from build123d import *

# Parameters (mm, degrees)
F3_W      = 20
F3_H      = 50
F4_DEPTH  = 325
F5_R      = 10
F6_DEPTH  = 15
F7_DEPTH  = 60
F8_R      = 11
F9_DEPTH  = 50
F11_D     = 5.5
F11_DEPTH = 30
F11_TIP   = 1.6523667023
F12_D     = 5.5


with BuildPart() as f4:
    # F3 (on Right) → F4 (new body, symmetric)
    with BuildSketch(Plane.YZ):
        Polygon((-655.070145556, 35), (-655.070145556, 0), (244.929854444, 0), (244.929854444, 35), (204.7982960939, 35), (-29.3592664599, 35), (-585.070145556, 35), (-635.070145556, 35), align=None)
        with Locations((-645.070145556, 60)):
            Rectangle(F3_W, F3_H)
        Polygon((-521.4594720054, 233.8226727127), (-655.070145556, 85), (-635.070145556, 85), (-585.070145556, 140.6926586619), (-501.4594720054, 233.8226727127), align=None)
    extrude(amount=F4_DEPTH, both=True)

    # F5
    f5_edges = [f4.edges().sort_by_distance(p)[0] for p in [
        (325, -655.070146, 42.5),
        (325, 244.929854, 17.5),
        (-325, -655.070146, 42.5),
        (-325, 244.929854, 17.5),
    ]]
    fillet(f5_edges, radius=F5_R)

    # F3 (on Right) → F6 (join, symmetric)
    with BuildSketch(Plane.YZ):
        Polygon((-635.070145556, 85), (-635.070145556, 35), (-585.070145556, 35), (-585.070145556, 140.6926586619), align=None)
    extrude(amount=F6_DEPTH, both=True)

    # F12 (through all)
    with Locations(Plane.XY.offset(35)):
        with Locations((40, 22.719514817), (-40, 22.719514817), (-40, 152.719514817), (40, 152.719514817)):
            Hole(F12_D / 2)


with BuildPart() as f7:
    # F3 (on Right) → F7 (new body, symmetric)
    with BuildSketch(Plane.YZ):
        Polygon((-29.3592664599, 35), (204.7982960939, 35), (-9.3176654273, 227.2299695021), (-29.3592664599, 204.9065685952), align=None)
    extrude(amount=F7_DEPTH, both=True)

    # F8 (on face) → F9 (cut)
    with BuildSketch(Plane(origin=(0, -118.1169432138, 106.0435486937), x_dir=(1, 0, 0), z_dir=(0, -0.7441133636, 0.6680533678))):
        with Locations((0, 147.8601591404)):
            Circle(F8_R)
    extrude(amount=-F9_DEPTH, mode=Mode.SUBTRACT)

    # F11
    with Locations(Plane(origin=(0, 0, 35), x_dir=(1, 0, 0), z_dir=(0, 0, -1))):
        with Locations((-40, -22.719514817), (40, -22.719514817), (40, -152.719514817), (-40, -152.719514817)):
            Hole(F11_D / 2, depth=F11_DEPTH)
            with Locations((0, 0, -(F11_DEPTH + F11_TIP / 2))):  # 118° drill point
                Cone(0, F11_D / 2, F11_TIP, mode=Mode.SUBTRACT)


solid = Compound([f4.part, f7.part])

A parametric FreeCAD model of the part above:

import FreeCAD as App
import Part
import Sketcher
from FreeCAD import Vector


def edges_at(feature, points):
    """Names of the edges that pass closest to the given points."""
    edges = feature.Shape.Edges
    near = lambda p: min(range(len(edges)), key=lambda i: edges[i].distToShape(Part.Vertex(*p))[0])
    return sorted({f"Edge{near(p) + 1}" for p in points})


def add_polygon(sketch, points):
    """Adds a closed chain of lines whose ends are joined by coincident constraints."""
    first, n = sketch.GeometryCount, len(points)
    for a, b in zip(points, points[1:] + points[:1]):
        sketch.addGeometry(Part.LineSegment(App.Vector(*a, 0), App.Vector(*b, 0)), False)
    for i in range(n):
        sketch.addConstraint(Sketcher.Constraint("Coincident", first + i, 2, first + (i + 1) % n, 1))

doc = App.newDocument("Part")
body = doc.addObject("PartDesign::Body", "Body")

# Sketch on YZ plane
sketch1 = body.newObject("Sketcher::SketchObject", "Sketch")
sketch1.AttachmentSupport = (doc.getObject("YZ_Plane"), [""])
sketch1.MapMode = "FlatFace"
add_polygon(sketch1, [(-655, 0), (245, 0), (245, 35), (-635, 35), (-635, 85), (-501, 234), (-521, 234), (-655, 85)])  # lines 0-7
sketch1.addConstraint(Sketcher.Constraint("Horizontal", 0))
sketch1.addConstraint(Sketcher.Constraint("Vertical", 1))
sketch1.addConstraint(Sketcher.Constraint("Horizontal", 2))
sketch1.addConstraint(Sketcher.Constraint("Vertical", 3))
sketch1.addConstraint(Sketcher.Constraint("Horizontal", 5))
sketch1.addConstraint(Sketcher.Constraint("Vertical", 7))
sketch1.addConstraint(Sketcher.Constraint("PointOnObject", 0, 2, -1))
sketch1.addConstraint(Sketcher.Constraint("Parallel", 4, 6))
sketch1.addConstraint(Sketcher.Constraint("Horizontal", 3, 2, 6, 2))
sketch1.addConstraint(Sketcher.Constraint("DistanceX", 0, 1, 0, 2, 900.0))
sketch1.addConstraint(Sketcher.Constraint("DistanceX", 2, 2, 2, 1, 880.0))
sketch1.addConstraint(Sketcher.Constraint("DistanceY", 1, 1, 1, 2, 35.0))
sketch1.addConstraint(Sketcher.Constraint("DistanceY", 3, 1, 3, 2, 50.0))
sketch1.addConstraint(Sketcher.Constraint("Distance", 4, 200.0))
sketch1.addConstraint(Sketcher.Constraint("DistanceX", -1, 1, 0, 2, 244.929854))
sketch1.addConstraint(Sketcher.Constraint("DistanceX", 4, 2, -1, 1, 501.459472))
pad1 = body.newObject("PartDesign::Pad", "Pad")
pad1.Profile = sketch1
pad1.Length = 650
pad1.Midplane = True
doc.recompute()

fillet = body.newObject("PartDesign::Fillet", "Fillet")
fillet.Base = (pad1, edges_at(pad1, [
    (325, -655.07, 42.5),
    (325, 244.93, 17.5),
    (-325, -655.07, 42.5),
    (-325, 244.93, 17.5),
]))
fillet.Radius = 10

# Sketch on YZ plane
sketch2 = body.newObject("Sketcher::SketchObject", "Sketch001")
sketch2.AttachmentSupport = (doc.getObject("YZ_Plane"), [""])
sketch2.MapMode = "FlatFace"
add_polygon(sketch2, [(-635, 85), (-635, 35), (-585, 35), (-585, 141)])  # lines 0-3
sketch2.addConstraint(Sketcher.Constraint("Vertical", 0))
sketch2.addConstraint(Sketcher.Constraint("Horizontal", 1))
sketch2.addConstraint(Sketcher.Constraint("Vertical", 2))
sketch2.addConstraint(Sketcher.Constraint("Equal", 1, 0))
sketch2.addConstraint(Sketcher.Constraint("DistanceX", 1, 1, 1, 2, 50.0))
sketch2.addConstraint(Sketcher.Constraint("DistanceY", -1, 1, 0, 2, 35.0))
sketch2.addConstraint(Sketcher.Constraint("DistanceY", 2, 1, 2, 2, 105.692659))
sketch2.addConstraint(Sketcher.Constraint("DistanceX", 0, 2, -1, 1, 635.070146))
pad2 = body.newObject("PartDesign::Pad", "Pad001")
pad2.Profile = sketch2
pad2.Length = 30
pad2.Midplane = True

# Sketch on XY plane
sketch3 = body.newObject("Sketcher::SketchObject", "Sketch002")
sketch3.AttachmentSupport = (doc.getObject("XY_Plane"), [""])
sketch3.MapMode = "FlatFace"
sketch3.AttachmentOffset = App.Placement(Vector(0, 0, 35), App.Rotation())
sketch3.addGeometry(Part.Circle(Vector(40, 22.7, 0), Vector(0, 0, 1), 2.8), False)
sketch3.addGeometry(Part.Circle(Vector(-40, 22.7, 0), Vector(0, 0, 1), 2.8), False)
sketch3.addGeometry(Part.Circle(Vector(-40, 152.7, 0), Vector(0, 0, 1), 2.8), False)
sketch3.addGeometry(Part.Circle(Vector(40, 152.7, 0), Vector(0, 0, 1), 2.8), False)
sketch3.addConstraint(Sketcher.Constraint("Equal", 0, 1))
sketch3.addConstraint(Sketcher.Constraint("Equal", 1, 2))
sketch3.addConstraint(Sketcher.Constraint("Equal", 2, 3))
sketch3.addConstraint(Sketcher.Constraint("Symmetric", 0, 3, 1, 3, -2))
sketch3.addConstraint(Sketcher.Constraint("Symmetric", 2, 3, 3, 3, -2))
sketch3.addConstraint(Sketcher.Constraint("Vertical", 1, 3, 2, 3))
sketch3.addConstraint(Sketcher.Constraint("Diameter", 0, 5.5))
sketch3.addConstraint(Sketcher.Constraint("DistanceX", -1, 1, 0, 3, 40.0))
sketch3.addConstraint(Sketcher.Constraint("DistanceY", 1, 3, 2, 3, 130.0))
sketch3.addConstraint(Sketcher.Constraint("DistanceY", -1, 1, 0, 3, 22.719515))
doc.recompute()
hole = body.newObject("PartDesign::Hole", "Hole")
hole.Profile = sketch3
hole.ThreadType = "None"
hole.Diameter = 5.5
hole.DepthType = "ThroughAll"
body2 = doc.addObject("PartDesign::Body", "Body001")

# Sketch on YZ plane
sketch4 = body2.newObject("Sketcher::SketchObject", "Sketch003")
sketch4.AttachmentSupport = (doc.getObject("YZ_Plane001"), [""])
sketch4.MapMode = "FlatFace"
add_polygon(sketch4, [(-29, 35), (205, 35), (-9, 227), (-29, 205)])  # lines 0-3
sketch4.addConstraint(Sketcher.Constraint("Horizontal", 0))
sketch4.addConstraint(Sketcher.Constraint("Vertical", 3))
sketch4.addConstraint(Sketcher.Constraint("Perpendicular", 1, 2))
sketch4.addConstraint(Sketcher.Constraint("Distance", 2, 30.0))
sketch4.addConstraint(Sketcher.Constraint("DistanceY", -1, 1, 0, 2, 35.0))
sketch4.addConstraint(Sketcher.Constraint("DistanceY", 3, 2, 3, 1, 169.906569))
sketch4.addConstraint(Sketcher.Constraint("DistanceX", 2, 2, 1, 2, 20.041601))
sketch4.addConstraint(Sketcher.Constraint("DistanceX", -1, 1, 0, 2, 204.798296))
pad3 = body2.newObject("PartDesign::Pad", "Pad002")
pad3.Profile = sketch4
pad3.Length = 120
pad3.Midplane = True

# Sketch on an angled plane
sketch5 = body2.newObject("Sketcher::SketchObject", "Sketch004")
sketch5.Placement = App.Placement(Vector(0, -118.116943, 106.043549), App.Rotation(Vector(1, 0, 0), Vector(0, 0.668053368, 0.744113364), Vector(0, -0.744113364, 0.668053368), "ZXY"))
sketch5.addGeometry(Part.Circle(Vector(0, 148, 0), Vector(0, 0, 1), 11), False)
sketch5.addConstraint(Sketcher.Constraint("PointOnObject", 0, 3, -2))
sketch5.addConstraint(Sketcher.Constraint("Diameter", 0, 22.0))
sketch5.addConstraint(Sketcher.Constraint("DistanceY", -1, 1, 0, 3, 147.860159))
pocket1 = body2.newObject("PartDesign::Pocket", "Pocket")
pocket1.Profile = sketch5
pocket1.Length = 50

# Sketch on XY plane
sketch6 = body2.newObject("Sketcher::SketchObject", "Sketch005")
sketch6.AttachmentSupport = (doc.getObject("XY_Plane001"), [""])
sketch6.MapMode = "FlatFace"
sketch6.AttachmentOffset = App.Placement(Vector(0, 0, 35), App.Rotation())
sketch6.addGeometry(Part.Circle(Vector(-40, 22.7, 0), Vector(0, 0, 1), 2.8), False)
sketch6.addGeometry(Part.Circle(Vector(40, 22.7, 0), Vector(0, 0, 1), 2.8), False)
sketch6.addGeometry(Part.Circle(Vector(40, 152.7, 0), Vector(0, 0, 1), 2.8), False)
sketch6.addGeometry(Part.Circle(Vector(-40, 152.7, 0), Vector(0, 0, 1), 2.8), False)
sketch6.addConstraint(Sketcher.Constraint("Equal", 0, 1))
sketch6.addConstraint(Sketcher.Constraint("Equal", 1, 2))
sketch6.addConstraint(Sketcher.Constraint("Equal", 2, 3))
sketch6.addConstraint(Sketcher.Constraint("Symmetric", 0, 3, 1, 3, -2))
sketch6.addConstraint(Sketcher.Constraint("Symmetric", 2, 3, 3, 3, -2))
sketch6.addConstraint(Sketcher.Constraint("Vertical", 1, 3, 2, 3))
sketch6.addConstraint(Sketcher.Constraint("Diameter", 0, 5.5))
sketch6.addConstraint(Sketcher.Constraint("DistanceX", 0, 3, -1, 1, 40.0))
sketch6.addConstraint(Sketcher.Constraint("DistanceY", 1, 3, 2, 3, 130.0))
sketch6.addConstraint(Sketcher.Constraint("DistanceY", -1, 1, 0, 3, 22.719515))
doc.recompute()
hole2 = body2.newObject("PartDesign::Hole", "Hole001")
hole2.Profile = sketch6
hole2.ThreadType = "None"
hole2.Diameter = 5.5
hole2.DepthType = "Dimension"
hole2.Depth = 30
hole2.DrillPoint = "Angled"
hole2.DrillPointAngle = 118
hole2.Reversed = True

doc.recompute()
